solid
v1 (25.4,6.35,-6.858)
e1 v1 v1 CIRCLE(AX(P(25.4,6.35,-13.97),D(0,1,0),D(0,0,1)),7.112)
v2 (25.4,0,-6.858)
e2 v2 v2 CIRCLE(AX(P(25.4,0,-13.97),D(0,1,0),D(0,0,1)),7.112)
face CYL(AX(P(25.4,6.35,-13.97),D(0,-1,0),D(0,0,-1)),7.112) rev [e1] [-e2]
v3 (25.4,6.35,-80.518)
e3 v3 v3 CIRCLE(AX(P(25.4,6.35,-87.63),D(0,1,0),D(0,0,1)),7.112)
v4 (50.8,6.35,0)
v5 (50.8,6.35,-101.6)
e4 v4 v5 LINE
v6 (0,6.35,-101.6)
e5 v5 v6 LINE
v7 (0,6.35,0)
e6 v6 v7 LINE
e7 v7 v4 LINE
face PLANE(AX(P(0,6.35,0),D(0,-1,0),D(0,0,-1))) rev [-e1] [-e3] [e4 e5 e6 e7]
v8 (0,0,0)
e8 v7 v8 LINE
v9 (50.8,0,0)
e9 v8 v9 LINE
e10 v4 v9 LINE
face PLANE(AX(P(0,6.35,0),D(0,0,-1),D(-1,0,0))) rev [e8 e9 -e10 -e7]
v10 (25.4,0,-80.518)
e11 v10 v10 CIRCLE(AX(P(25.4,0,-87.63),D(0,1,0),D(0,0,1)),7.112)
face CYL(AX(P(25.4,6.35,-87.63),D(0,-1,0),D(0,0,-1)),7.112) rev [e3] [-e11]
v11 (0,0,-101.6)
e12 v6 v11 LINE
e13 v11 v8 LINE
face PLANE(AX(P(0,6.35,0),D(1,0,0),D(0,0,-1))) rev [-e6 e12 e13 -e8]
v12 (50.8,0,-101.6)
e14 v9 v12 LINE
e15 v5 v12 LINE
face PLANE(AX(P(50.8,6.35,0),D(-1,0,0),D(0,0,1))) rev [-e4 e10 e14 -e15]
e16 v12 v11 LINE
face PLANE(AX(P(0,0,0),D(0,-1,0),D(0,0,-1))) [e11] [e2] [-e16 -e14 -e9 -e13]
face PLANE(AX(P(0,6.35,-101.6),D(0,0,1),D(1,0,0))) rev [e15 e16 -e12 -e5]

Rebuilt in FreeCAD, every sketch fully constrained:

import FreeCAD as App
import Part
import Sketcher

V = App.Vector
Q = App.Units.Quantity


def add_polygon(sketch, points):
    """Adds a closed chain of lines whose ends are joined by coincident constraints."""
    first, n = sketch.GeometryCount, len(points)
    for a, b in zip(points, points[1:] + points[:1]):
        sketch.addGeometry(Part.LineSegment(App.Vector(*a, 0), App.Vector(*b, 0)), False)
    for i in range(n):
        sketch.addConstraint(Sketcher.Constraint("Coincident", first + i, 2, first + (i + 1) % n, 1))

doc = App.newDocument("Part")
body = doc.addObject("PartDesign::Body", "Body")

# Sketch on XZ plane
sketch1 = body.newObject("Sketcher::SketchObject", "Sketch")
sketch1.AttachmentSupport = (doc.getObject("XZ_Plane"), [""])
sketch1.MapMode = "FlatFace"
add_polygon(sketch1, [(0, -101.6), (0, 0), (50.8, 0), (50.8, -101.6)])  # lines 0-3
sketch1.addGeometry(Part.Circle(V(25.4, -13.97, 0), V(0, 0, 1), 7.112), False)  # 4
sketch1.addGeometry(Part.Circle(V(25.4, -87.63, 0), V(0, 0, 1), 7.112), False)  # 5
sketch1.addConstraint([
    Sketcher.Constraint("Vertical", 0),
    Sketcher.Constraint("Horizontal", 1),
    Sketcher.Constraint("Vertical", 2),
    Sketcher.Constraint("Horizontal", 3),
    Sketcher.Constraint("Coincident", 0, 2, -1, 1),
    Sketcher.Constraint("Equal", 4, 5),
    Sketcher.Constraint("Vertical", 4, 3, 5, 3),
    Sketcher.Constraint("Diameter", 4, Q("0.56 in")),
    Sketcher.Constraint("DistanceX", 1, 1, 1, 2, Q("2 in")),
    Sketcher.Constraint("DistanceY", 0, 1, 0, 2, Q("4 in")),
    Sketcher.Constraint("DistanceX", -1, 1, 4, 3, Q("1 in")),
    Sketcher.Constraint("DistanceY", 5, 3, 4, 3, Q("2.9 in")),
    Sketcher.Constraint("DistanceY", 4, 3, -1, 1, Q("0.55 in")),
])
pad1 = body.newObject("PartDesign::Pad", "Pad")
pad1.Profile = sketch1
pad1.Length = Q("0.25 in")
pad1.Reversed = True

doc.recompute()
